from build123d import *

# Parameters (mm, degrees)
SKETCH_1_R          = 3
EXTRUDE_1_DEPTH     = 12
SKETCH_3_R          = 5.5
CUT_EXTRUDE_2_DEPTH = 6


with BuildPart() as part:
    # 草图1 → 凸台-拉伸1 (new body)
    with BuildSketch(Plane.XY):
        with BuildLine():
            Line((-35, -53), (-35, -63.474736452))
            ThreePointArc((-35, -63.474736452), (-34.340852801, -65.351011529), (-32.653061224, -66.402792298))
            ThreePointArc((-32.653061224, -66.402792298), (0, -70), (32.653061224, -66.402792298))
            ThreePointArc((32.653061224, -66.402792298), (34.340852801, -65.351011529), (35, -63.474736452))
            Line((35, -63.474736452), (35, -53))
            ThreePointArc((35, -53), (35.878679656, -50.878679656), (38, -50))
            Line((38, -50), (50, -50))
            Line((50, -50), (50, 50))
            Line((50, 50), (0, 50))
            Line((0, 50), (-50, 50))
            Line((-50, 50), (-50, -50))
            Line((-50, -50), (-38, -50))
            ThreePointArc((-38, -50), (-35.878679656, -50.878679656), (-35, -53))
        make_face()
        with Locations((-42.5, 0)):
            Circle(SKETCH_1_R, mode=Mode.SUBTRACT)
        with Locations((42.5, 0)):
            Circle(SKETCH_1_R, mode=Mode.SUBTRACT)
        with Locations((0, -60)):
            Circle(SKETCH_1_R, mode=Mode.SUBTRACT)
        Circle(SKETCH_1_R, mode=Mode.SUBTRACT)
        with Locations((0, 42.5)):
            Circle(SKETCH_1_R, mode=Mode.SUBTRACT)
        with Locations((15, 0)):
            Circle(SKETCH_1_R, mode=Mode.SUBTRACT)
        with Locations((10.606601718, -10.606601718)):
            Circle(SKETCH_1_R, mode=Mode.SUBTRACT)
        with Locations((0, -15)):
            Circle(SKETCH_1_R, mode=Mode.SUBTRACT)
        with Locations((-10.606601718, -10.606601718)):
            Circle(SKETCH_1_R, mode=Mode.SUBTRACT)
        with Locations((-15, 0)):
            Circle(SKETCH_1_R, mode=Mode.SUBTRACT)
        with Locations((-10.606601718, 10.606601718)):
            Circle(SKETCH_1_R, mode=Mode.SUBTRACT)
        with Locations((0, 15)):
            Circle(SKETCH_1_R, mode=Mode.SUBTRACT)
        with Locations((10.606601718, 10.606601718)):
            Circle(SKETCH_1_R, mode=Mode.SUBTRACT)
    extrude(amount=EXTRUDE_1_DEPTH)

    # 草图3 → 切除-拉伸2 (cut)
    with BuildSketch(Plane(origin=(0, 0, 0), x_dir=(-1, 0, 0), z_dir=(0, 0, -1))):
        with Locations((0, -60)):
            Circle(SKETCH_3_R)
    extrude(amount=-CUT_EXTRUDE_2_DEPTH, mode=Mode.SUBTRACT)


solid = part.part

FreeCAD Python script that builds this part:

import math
import FreeCAD as App
import Part
import Sketcher
from FreeCAD import Vector
Q = App.Units.Quantity

doc = App.newDocument("Part")
body = doc.addObject("PartDesign::Body", "Body")

sketch1 = body.newObject("Sketcher::SketchObject", "Sketch")
sketch1.AttachmentSupport = (doc.getObject("XY_Plane"), [""])
sketch1.MapMode = "FlatFace"
sketch1.addGeometry([
    Part.LineSegment(Vector(-35, -53, 0), Vector(-35, -63.5, 0)),
    Part.ArcOfCircle(Part.Circle(Vector(-32, -63.5, 0), Vector(0, 0, 1), 3), math.radians(180), math.radians(257)),
    Part.ArcOfCircle(Part.Circle(Vector(0, 80, 0), Vector(0, 0, 1), 150), math.radians(-103), math.radians(-77)),
    Part.ArcOfCircle(Part.Circle(Vector(32, -63.5, 0), Vector(0, 0, 1), 3), math.radians(-77), math.radians(0)),
    Part.LineSegment(Vector(35, -63.5, 0), Vector(35, -53, 0)),
    Part.ArcOfCircle(Part.Circle(Vector(38, -53, 0), Vector(0, 0, 1), 3), math.radians(90), math.radians(180)),
    Part.LineSegment(Vector(38, -50, 0), Vector(50, -50, 0)),
    Part.LineSegment(Vector(50, -50, 0), Vector(50, 50, 0)),
    Part.LineSegment(Vector(50, 50, 0), Vector(-50, 50, 0)),
    Part.LineSegment(Vector(-50, 50, 0), Vector(-50, -50, 0)),
    Part.LineSegment(Vector(-50, -50, 0), Vector(-38, -50, 0)),
    Part.ArcOfCircle(Part.Circle(Vector(-38, -53, 0), Vector(0, 0, 1), 3), math.radians(0), math.radians(90)),
    Part.Circle(Vector(-10.6, -10.6, 0), Vector(0, 0, 1), 3),
    Part.Circle(Vector(0, -60, 0), Vector(0, 0, 1), 3),
    Part.Circle(Vector(0, -15, 0), Vector(0, 0, 1), 3),
    Part.Circle(Vector(10.6, -10.6, 0), Vector(0, 0, 1), 3),
    Part.Circle(Vector(-42.5, 0, 0), Vector(0, 0, 1), 3),
    Part.Circle(Vector(-15, 0, 0), Vector(0, 0, 1), 3),
    Part.Circle(Vector(-10.6, 10.6, 0), Vector(0, 0, 1), 3),
    Part.Circle(Vector(0, 0, 0), Vector(0, 0, 1), 3),
    Part.Circle(Vector(15, 0, 0), Vector(0, 0, 1), 3),
    Part.Circle(Vector(10.6, 10.6, 0), Vector(0, 0, 1), 3),
    Part.Circle(Vector(0, 15, 0), Vector(0, 0, 1), 3),
    Part.Circle(Vector(42.5, 0, 0), Vector(0, 0, 1), 3),
    Part.Circle(Vector(0, 42.5, 0), Vector(0, 0, 1), 3),
], False)
sketch1.addConstraint([
    Sketcher.Constraint("Tangent", 0, 2, 1, 1),
    Sketcher.Constraint("Tangent", 1, 2, 2, 1),
    Sketcher.Constraint("Tangent", 2, 2, 3, 1),
    Sketcher.Constraint("Tangent", 3, 2, 4, 1),
    Sketcher.Constraint("Tangent", 4, 2, 5, 2),
    Sketcher.Constraint("Tangent", 5, 1, 6, 1),
    Sketcher.Constraint("Coincident", 6, 2, 7, 1),
    Sketcher.Constraint("Coincident", 7, 2, 8, 1),
    Sketcher.Constraint("Coincident", 8, 2, 9, 1),
    Sketcher.Constraint("Coincident", 9, 2, 10, 1),
    Sketcher.Constraint("Tangent", 10, 2, 11, 2),
    Sketcher.Constraint("Tangent", 11, 1, 0, 1),
    Sketcher.Constraint("Vertical", 0),
    Sketcher.Constraint("Vertical", 4),
    Sketcher.Constraint("Horizontal", 6),
    Sketcher.Constraint("Vertical", 7),
    Sketcher.Constraint("Horizontal", 8),
    Sketcher.Constraint("Vertical", 9),
    Sketcher.Constraint("Horizontal", 10),
    Sketcher.Constraint("Coincident", 19, 3, -1, 1),
    Sketcher.Constraint("Equal", 1, 3),
    Sketcher.Constraint("Equal", 3, 5),
    Sketcher.Constraint("Equal", 5, 11),
    Sketcher.Constraint("Equal", 11, 12),
    Sketcher.Constraint("Equal", 12, 13),
    Sketcher.Constraint("Equal", 13, 14),
    Sketcher.Constraint("Equal", 14, 15),
    Sketcher.Constraint("Equal", 15, 16),
    Sketcher.Constraint("Equal", 16, 17),
    Sketcher.Constraint("Equal", 17, 18),
    Sketcher.Constraint("Equal", 18, 19),
    Sketcher.Constraint("Equal", 19, 20),
    Sketcher.Constraint("Equal", 20, 21),
    Sketcher.Constraint("Equal", 21, 22),
    Sketcher.Constraint("Equal", 22, 23),
    Sketcher.Constraint("Equal", 23, 24),
    Sketcher.Constraint("Symmetric", 15, 3, 18, 3, -1, 1),
    Sketcher.Constraint("Symmetric", 17, 3, 20, 3, -1, 1),
    Sketcher.Constraint("Symmetric", 12, 3, 21, 3, -1, 1),
    Sketcher.Constraint("Symmetric", 14, 3, 22, 3, -1, 1),
    Sketcher.Constraint("Symmetric", 16, 3, 23, 3, -1, 1),
    Sketcher.Constraint("Symmetric", 6, 2, 8, 2, -1, 1),
    Sketcher.Constraint("Symmetric", 1, 3, 3, 3, -2),
    Sketcher.Constraint("Symmetric", 12, 3, 15, 3, -2),
    Sketcher.Constraint("PointOnObject", 13, 3, -2),
    Sketcher.Constraint("PointOnObject", 14, 3, -2),
    Sketcher.Constraint("PointOnObject", 16, 3, -1),
    Sketcher.Constraint("PointOnObject", 17, 3, -1),
    Sketcher.Constraint("PointOnObject", 24, 3, -2),
    Sketcher.Constraint("Horizontal", 5, 3, 11, 3),
    Sketcher.Constraint("Equal", 8, 7),
    Sketcher.Constraint("Diameter", 12, Q("6 mm")),
    Sketcher.Constraint("Radius", 2, Q("150 mm")),
    Sketcher.Constraint("DistanceX", 6, 1, 6, 2, Q("12 mm")),
    Sketcher.Constraint("DistanceX", 8, 2, 8, 1, Q("100 mm")),
    Sketcher.Constraint("DistanceY", -1, 1, 2, 3, Q("80 mm")),
    Sketcher.Constraint("DistanceY", 13, 3, -1, 1, Q("60 mm")),
    Sketcher.Constraint("DistanceY", 14, 3, -1, 1, Q("15 mm")),
    Sketcher.Constraint("DistanceX", 17, 3, -1, 1, Q("15 mm")),
    Sketcher.Constraint("DistanceX", 16, 3, -1, 1, Q("42.5 mm")),
    Sketcher.Constraint("DistanceY", -1, 1, 24, 3, Q("42.5 mm")),
    Sketcher.Constraint("DistanceX", 12, 3, -1, 1, Q("10.606602 mm")),
    Sketcher.Constraint("DistanceY", 12, 3, -1, 1, Q("10.606602 mm")),
])
pad1 = body.newObject("PartDesign::Pad", "Pad")
pad1.Profile = sketch1
pad1.Length = 12

sketch2 = body.newObject("Sketcher::SketchObject", "Sketch001")
sketch2.AttachmentSupport = (doc.getObject("XY_Plane"), [""])
sketch2.MapMode = "FlatFace"
sketch2.addGeometry(Part.Circle(Vector(0, -60, 0), Vector(0, 0, 1), 6), False)
sketch2.addConstraint([
    Sketcher.Constraint("PointOnObject", 0, 3, -2),
    Sketcher.Constraint("Diameter", 0, Q("11 mm")),
    Sketcher.Constraint("DistanceY", 0, 3, -1, 1, Q("60 mm")),
])
pocket1 = body.newObject("PartDesign::Pocket", "Pocket")
pocket1.Profile = sketch2
pocket1.Length = 6
pocket1.Reversed = True

doc.recompute()
